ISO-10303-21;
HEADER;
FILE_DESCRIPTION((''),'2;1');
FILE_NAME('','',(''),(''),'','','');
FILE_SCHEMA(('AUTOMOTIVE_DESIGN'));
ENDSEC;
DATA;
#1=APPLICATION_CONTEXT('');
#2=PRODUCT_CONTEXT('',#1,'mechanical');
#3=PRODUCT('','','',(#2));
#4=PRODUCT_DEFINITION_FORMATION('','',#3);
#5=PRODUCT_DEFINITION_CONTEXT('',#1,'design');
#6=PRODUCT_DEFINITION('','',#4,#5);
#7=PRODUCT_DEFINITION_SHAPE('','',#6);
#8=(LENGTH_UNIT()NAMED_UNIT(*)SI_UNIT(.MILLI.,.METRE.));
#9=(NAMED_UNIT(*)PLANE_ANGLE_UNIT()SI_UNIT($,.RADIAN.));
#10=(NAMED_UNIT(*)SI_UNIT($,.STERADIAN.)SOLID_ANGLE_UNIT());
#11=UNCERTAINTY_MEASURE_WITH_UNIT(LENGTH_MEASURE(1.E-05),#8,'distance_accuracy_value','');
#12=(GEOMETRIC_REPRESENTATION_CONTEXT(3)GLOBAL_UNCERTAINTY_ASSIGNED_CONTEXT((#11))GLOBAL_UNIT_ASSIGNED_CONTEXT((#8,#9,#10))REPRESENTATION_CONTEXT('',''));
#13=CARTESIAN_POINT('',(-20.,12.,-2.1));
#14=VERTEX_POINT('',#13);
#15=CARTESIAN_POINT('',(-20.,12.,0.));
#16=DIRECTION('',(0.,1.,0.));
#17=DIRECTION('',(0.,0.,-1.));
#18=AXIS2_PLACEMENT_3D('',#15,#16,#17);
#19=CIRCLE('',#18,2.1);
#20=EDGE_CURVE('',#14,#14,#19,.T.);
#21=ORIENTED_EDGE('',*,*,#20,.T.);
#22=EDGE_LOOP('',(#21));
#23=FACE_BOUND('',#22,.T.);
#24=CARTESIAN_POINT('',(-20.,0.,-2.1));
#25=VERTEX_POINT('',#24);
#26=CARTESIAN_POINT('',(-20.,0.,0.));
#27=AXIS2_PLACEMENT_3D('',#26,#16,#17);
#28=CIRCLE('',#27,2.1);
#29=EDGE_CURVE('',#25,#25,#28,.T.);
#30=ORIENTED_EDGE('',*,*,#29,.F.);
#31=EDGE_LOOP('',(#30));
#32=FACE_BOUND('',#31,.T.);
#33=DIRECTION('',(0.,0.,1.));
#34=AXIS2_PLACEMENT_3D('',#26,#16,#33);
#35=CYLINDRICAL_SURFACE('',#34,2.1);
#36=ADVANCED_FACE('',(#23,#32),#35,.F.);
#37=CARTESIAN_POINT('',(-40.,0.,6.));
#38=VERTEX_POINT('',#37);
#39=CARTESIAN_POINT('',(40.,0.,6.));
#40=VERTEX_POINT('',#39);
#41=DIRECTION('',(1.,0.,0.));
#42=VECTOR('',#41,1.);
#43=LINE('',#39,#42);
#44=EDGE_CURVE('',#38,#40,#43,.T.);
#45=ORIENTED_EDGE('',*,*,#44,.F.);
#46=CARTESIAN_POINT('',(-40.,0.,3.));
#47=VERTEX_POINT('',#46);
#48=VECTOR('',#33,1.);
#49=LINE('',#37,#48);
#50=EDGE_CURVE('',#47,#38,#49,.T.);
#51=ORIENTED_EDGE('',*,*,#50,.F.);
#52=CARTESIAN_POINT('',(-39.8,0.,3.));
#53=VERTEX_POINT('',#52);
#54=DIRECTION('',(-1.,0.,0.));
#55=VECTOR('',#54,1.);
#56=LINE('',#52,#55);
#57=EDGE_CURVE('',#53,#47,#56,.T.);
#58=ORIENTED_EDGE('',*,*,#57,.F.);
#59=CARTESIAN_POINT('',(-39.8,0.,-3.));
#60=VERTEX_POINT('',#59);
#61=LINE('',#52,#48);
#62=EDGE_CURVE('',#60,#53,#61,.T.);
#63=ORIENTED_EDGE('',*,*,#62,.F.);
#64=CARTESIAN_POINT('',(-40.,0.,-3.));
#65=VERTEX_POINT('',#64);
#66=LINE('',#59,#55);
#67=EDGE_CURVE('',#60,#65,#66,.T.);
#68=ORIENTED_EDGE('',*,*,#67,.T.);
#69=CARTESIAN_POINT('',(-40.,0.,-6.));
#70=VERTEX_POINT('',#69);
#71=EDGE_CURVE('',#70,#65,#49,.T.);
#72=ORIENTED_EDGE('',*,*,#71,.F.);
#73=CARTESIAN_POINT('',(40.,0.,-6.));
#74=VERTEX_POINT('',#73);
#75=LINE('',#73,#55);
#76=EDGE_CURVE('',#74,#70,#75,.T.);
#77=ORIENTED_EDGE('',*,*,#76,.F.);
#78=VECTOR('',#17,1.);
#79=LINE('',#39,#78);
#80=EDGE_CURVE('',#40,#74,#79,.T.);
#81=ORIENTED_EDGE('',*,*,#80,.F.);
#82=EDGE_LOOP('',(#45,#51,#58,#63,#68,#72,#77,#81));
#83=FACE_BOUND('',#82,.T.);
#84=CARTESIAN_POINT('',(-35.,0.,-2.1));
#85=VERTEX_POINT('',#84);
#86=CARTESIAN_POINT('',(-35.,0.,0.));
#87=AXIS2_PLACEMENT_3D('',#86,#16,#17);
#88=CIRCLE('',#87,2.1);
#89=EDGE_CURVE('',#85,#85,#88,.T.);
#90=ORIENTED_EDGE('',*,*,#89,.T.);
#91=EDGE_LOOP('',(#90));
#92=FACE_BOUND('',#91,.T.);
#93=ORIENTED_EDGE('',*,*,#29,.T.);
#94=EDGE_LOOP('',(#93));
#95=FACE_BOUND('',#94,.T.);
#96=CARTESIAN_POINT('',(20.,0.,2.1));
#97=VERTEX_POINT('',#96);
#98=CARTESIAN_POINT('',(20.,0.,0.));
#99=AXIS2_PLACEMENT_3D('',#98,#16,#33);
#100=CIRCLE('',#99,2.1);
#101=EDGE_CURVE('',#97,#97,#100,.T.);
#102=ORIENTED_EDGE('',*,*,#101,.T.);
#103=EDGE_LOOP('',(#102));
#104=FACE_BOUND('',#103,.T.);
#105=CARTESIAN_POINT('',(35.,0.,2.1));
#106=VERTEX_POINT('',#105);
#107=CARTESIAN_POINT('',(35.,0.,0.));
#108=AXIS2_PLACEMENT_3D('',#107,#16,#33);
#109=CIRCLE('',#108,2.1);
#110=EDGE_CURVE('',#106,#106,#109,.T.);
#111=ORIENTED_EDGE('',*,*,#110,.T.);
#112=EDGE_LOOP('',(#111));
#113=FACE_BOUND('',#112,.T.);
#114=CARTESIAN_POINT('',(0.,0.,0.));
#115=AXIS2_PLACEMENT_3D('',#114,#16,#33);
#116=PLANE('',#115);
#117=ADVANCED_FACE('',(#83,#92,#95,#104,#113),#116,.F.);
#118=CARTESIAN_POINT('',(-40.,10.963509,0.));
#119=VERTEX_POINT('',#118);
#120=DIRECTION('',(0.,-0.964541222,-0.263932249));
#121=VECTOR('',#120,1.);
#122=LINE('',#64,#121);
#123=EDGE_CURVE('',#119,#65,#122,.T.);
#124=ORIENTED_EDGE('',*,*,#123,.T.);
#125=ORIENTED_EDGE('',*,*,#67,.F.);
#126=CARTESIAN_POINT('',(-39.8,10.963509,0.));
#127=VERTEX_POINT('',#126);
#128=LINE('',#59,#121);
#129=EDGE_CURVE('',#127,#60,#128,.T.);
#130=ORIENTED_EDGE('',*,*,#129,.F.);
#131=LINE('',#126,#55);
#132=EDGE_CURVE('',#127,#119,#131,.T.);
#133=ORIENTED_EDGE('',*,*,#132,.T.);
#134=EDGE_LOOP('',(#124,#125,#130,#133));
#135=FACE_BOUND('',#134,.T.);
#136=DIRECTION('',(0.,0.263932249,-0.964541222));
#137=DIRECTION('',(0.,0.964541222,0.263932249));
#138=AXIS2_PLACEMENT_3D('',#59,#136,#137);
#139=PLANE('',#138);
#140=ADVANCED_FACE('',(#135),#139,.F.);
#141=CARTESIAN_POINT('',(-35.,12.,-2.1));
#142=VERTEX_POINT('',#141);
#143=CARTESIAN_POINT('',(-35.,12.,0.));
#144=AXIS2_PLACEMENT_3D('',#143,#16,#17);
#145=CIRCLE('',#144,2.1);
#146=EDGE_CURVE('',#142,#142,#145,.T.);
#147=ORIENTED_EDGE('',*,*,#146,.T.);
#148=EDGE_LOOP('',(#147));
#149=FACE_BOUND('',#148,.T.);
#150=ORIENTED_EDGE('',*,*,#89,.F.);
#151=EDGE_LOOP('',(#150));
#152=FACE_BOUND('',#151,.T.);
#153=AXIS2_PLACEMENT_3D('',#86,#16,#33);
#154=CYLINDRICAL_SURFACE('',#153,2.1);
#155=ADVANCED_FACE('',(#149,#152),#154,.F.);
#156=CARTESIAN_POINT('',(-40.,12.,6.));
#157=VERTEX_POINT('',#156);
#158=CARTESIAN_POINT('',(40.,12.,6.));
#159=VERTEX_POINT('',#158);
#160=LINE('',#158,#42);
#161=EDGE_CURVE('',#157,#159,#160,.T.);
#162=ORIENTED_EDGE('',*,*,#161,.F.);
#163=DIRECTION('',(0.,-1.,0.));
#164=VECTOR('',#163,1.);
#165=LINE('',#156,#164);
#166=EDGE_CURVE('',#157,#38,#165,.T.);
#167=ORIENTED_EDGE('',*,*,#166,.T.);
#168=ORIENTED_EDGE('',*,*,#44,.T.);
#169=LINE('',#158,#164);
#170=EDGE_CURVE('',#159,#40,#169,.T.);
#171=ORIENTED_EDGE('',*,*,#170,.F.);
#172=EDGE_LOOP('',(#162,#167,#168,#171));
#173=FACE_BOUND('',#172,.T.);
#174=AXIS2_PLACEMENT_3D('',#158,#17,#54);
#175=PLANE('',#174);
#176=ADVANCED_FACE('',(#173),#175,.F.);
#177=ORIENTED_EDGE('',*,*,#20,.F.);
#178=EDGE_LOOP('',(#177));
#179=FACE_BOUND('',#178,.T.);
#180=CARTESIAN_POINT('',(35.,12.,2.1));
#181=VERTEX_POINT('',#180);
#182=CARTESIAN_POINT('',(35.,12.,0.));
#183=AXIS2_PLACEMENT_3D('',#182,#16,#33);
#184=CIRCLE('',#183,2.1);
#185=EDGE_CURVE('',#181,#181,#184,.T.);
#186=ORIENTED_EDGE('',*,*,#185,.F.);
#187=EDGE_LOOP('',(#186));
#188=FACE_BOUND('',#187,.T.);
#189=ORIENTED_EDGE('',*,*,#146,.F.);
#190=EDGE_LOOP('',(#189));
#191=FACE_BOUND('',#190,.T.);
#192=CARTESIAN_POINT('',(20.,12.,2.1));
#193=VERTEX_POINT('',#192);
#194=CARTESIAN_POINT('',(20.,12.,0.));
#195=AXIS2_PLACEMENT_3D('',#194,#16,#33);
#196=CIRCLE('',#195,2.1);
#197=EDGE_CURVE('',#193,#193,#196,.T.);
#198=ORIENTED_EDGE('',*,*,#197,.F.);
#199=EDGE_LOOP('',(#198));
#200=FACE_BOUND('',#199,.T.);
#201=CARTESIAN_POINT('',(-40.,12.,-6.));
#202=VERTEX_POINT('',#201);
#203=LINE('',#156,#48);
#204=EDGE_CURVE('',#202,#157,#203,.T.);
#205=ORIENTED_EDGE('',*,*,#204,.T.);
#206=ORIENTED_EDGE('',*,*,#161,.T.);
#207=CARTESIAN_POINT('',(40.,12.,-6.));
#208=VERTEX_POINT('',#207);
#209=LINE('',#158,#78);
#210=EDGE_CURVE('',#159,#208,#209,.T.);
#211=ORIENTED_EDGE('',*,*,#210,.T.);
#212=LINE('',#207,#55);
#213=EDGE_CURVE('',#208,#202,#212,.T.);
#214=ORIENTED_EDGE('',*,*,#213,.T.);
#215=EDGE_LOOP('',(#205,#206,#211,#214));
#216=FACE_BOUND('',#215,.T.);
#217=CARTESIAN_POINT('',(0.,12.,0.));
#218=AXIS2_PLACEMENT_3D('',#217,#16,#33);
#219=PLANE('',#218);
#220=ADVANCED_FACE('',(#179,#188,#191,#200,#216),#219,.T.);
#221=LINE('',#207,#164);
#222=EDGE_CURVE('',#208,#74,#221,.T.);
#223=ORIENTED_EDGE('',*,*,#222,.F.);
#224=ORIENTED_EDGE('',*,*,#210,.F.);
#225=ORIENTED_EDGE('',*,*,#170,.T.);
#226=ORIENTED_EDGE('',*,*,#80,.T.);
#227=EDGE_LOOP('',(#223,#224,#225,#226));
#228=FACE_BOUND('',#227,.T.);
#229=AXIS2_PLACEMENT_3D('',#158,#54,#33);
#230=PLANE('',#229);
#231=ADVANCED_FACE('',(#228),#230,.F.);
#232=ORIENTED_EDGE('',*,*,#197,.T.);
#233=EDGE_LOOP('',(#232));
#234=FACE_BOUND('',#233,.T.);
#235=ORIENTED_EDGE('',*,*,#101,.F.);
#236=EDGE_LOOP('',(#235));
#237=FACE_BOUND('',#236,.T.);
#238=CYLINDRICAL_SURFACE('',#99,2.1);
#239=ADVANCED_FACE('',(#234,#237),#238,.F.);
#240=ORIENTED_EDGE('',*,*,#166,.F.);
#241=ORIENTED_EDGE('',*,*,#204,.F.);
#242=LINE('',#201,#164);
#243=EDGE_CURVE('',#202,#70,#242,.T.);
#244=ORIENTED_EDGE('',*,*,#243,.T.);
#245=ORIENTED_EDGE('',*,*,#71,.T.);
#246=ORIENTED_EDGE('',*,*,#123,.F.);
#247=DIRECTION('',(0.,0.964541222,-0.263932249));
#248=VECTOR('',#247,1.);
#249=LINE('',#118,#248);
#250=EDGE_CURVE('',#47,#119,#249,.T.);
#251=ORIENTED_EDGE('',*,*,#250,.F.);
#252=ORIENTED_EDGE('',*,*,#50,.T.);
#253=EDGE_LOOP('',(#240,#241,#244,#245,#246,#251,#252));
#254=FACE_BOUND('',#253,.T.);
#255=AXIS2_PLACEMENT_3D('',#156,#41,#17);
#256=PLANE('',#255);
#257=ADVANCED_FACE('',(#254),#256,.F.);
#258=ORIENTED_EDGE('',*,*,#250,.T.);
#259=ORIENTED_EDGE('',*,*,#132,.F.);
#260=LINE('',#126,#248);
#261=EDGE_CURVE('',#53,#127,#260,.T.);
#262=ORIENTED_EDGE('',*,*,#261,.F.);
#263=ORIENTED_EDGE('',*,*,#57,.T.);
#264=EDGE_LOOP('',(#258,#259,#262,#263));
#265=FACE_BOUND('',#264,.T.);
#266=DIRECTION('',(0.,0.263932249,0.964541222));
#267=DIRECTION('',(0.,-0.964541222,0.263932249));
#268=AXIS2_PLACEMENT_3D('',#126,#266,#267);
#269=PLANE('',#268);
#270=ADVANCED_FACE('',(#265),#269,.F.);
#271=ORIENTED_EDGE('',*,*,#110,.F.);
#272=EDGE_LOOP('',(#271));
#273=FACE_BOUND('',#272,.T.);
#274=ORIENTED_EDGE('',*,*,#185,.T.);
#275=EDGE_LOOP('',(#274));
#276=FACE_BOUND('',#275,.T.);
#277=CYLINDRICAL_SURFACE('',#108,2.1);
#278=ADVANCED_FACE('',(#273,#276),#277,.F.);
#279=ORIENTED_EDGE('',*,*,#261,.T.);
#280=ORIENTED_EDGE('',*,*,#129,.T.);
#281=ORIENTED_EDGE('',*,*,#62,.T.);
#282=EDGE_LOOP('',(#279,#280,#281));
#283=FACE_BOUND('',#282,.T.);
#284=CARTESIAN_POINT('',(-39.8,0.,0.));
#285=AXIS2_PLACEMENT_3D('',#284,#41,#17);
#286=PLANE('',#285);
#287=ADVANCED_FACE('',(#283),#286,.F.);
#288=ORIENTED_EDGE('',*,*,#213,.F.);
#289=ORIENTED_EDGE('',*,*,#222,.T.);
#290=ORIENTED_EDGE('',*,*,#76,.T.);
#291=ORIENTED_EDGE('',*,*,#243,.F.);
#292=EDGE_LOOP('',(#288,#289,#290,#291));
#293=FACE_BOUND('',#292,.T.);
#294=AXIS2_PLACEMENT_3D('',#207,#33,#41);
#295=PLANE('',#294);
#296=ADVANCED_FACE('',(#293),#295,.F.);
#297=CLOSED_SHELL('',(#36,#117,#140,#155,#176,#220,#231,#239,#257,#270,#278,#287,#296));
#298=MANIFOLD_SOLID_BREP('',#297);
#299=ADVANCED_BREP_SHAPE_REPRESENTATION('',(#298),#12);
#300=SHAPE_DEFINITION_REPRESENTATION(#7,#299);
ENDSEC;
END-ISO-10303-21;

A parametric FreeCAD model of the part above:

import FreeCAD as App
import Part
import Sketcher
from FreeCAD import Vector
Q = App.Units.Quantity


def add_polygon(sketch, points):
    """Adds a closed chain of lines whose ends are joined by coincident constraints."""
    first, n = sketch.GeometryCount, len(points)
    for a, b in zip(points, points[1:] + points[:1]):
        sketch.addGeometry(Part.LineSegment(App.Vector(*a, 0), App.Vector(*b, 0)), False)
    for i in range(n):
        sketch.addConstraint(Sketcher.Constraint("Coincident", first + i, 2, first + (i + 1) % n, 1))

doc = App.newDocument("Part")
body = doc.addObject("PartDesign::Body", "Body")

# Sketch on XZ plane
sketch1 = doc.addObject("Sketcher::SketchObject", "Sketch")
body.addObject(sketch1)
sketch1.AttachmentSupport = (doc.XZ_Plane, [""])
sketch1.MapMode = "FlatFace"
add_polygon(sketch1, [(-40, -6), (-40, 6), (40, 6), (40, -6)])  # lines 0-3
sketch1.addConstraint(Sketcher.Constraint("Vertical", 0))
sketch1.addConstraint(Sketcher.Constraint("Horizontal", 1))
sketch1.addConstraint(Sketcher.Constraint("Vertical", 2))
sketch1.addConstraint(Sketcher.Constraint("Horizontal", 3))
sketch1.addConstraint(Sketcher.Constraint("Symmetric", 0, 2, 2, 2, -1, 1))
sketch1.addConstraint(Sketcher.Constraint("DistanceX", 1, 1, 1, 2, Q("80 mm")))
sketch1.addConstraint(Sketcher.Constraint("DistanceY", 0, 1, 0, 2, Q("12 mm")))
pad1 = doc.addObject("PartDesign::Pad", "Pad")
body.addObject(pad1)
pad1.Profile = sketch1
pad1.Length = 12
pad1.Reversed = True

# Sketch on XZ plane
sketch2 = doc.addObject("Sketcher::SketchObject", "Sketch001")
body.addObject(sketch2)
sketch2.AttachmentSupport = (doc.XZ_Plane, [""])
sketch2.MapMode = "FlatFace"
sketch2.AttachmentOffset = App.Placement(Vector(0, 0, -12), App.Rotation())
sketch2.addGeometry(Part.Circle(Vector(35, 0, 0), Vector(0, 0, 1), 2.1), False)
sketch2.addGeometry(Part.Circle(Vector(20, 0, 0), Vector(0, 0, 1), 2.1), False)
sketch2.addGeometry(Part.Circle(Vector(-20, 0, 0), Vector(0, 0, 1), 2.1), False)
sketch2.addGeometry(Part.Circle(Vector(-35, 0, 0), Vector(0, 0, 1), 2.1), False)
sketch2.addConstraint(Sketcher.Constraint("Equal", 0, 1))
sketch2.addConstraint(Sketcher.Constraint("Equal", 1, 2))
sketch2.addConstraint(Sketcher.Constraint("Equal", 2, 3))
sketch2.addConstraint(Sketcher.Constraint("Symmetric", 1, 3, 2, 3, -1, 1))
sketch2.addConstraint(Sketcher.Constraint("Symmetric", 0, 3, 3, 3, -1, 1))
sketch2.addConstraint(Sketcher.Constraint("PointOnObject", 0, 3, -1))
sketch2.addConstraint(Sketcher.Constraint("PointOnObject", 1, 3, -1))
sketch2.addConstraint(Sketcher.Constraint("Diameter", 0, Q("4.2 mm")))
sketch2.addConstraint(Sketcher.Constraint("DistanceX", -1, 1, 0, 3, Q("35 mm")))
sketch2.addConstraint(Sketcher.Constraint("DistanceX", -1, 1, 1, 3, Q("20 mm")))
pocket1 = doc.addObject("PartDesign::Pocket", "Pocket")
body.addObject(pocket1)
pocket1.Profile = sketch2
pocket1.Type = "ThroughAll"
pocket1.Reversed = True

# Sketch on YZ plane
sketch3 = doc.addObject("Sketcher::SketchObject", "Sketch002")
body.addObject(sketch3)
sketch3.AttachmentSupport = (doc.YZ_Plane, [""])
sketch3.MapMode = "FlatFace"
sketch3.AttachmentOffset = App.Placement(Vector(0, 0, -40), App.Rotation())
add_polygon(sketch3, [(11, 0), (0, -3), (0, 3)])  # lines 0-2
sketch3.addConstraint(Sketcher.Constraint("Vertical", 1))
sketch3.addConstraint(Sketcher.Constraint("Symmetric", 0, 2, 1, 2, -1, 1))
sketch3.addConstraint(Sketcher.Constraint("PointOnObject", 2, 2, -1))
sketch3.addConstraint(Sketcher.Constraint("DistanceY", 1, 1, 1, 2, Q("6 mm")))
sketch3.addConstraint(Sketcher.Constraint("DistanceX", -1, 1, 2, 2, Q("10.963509 mm")))
pocket2 = doc.addObject("PartDesign::Pocket", "Pocket001")
body.addObject(pocket2)
pocket2.Profile = sketch3
pocket2.Length = 0.2
pocket2.Reversed = True

doc.recompute()
